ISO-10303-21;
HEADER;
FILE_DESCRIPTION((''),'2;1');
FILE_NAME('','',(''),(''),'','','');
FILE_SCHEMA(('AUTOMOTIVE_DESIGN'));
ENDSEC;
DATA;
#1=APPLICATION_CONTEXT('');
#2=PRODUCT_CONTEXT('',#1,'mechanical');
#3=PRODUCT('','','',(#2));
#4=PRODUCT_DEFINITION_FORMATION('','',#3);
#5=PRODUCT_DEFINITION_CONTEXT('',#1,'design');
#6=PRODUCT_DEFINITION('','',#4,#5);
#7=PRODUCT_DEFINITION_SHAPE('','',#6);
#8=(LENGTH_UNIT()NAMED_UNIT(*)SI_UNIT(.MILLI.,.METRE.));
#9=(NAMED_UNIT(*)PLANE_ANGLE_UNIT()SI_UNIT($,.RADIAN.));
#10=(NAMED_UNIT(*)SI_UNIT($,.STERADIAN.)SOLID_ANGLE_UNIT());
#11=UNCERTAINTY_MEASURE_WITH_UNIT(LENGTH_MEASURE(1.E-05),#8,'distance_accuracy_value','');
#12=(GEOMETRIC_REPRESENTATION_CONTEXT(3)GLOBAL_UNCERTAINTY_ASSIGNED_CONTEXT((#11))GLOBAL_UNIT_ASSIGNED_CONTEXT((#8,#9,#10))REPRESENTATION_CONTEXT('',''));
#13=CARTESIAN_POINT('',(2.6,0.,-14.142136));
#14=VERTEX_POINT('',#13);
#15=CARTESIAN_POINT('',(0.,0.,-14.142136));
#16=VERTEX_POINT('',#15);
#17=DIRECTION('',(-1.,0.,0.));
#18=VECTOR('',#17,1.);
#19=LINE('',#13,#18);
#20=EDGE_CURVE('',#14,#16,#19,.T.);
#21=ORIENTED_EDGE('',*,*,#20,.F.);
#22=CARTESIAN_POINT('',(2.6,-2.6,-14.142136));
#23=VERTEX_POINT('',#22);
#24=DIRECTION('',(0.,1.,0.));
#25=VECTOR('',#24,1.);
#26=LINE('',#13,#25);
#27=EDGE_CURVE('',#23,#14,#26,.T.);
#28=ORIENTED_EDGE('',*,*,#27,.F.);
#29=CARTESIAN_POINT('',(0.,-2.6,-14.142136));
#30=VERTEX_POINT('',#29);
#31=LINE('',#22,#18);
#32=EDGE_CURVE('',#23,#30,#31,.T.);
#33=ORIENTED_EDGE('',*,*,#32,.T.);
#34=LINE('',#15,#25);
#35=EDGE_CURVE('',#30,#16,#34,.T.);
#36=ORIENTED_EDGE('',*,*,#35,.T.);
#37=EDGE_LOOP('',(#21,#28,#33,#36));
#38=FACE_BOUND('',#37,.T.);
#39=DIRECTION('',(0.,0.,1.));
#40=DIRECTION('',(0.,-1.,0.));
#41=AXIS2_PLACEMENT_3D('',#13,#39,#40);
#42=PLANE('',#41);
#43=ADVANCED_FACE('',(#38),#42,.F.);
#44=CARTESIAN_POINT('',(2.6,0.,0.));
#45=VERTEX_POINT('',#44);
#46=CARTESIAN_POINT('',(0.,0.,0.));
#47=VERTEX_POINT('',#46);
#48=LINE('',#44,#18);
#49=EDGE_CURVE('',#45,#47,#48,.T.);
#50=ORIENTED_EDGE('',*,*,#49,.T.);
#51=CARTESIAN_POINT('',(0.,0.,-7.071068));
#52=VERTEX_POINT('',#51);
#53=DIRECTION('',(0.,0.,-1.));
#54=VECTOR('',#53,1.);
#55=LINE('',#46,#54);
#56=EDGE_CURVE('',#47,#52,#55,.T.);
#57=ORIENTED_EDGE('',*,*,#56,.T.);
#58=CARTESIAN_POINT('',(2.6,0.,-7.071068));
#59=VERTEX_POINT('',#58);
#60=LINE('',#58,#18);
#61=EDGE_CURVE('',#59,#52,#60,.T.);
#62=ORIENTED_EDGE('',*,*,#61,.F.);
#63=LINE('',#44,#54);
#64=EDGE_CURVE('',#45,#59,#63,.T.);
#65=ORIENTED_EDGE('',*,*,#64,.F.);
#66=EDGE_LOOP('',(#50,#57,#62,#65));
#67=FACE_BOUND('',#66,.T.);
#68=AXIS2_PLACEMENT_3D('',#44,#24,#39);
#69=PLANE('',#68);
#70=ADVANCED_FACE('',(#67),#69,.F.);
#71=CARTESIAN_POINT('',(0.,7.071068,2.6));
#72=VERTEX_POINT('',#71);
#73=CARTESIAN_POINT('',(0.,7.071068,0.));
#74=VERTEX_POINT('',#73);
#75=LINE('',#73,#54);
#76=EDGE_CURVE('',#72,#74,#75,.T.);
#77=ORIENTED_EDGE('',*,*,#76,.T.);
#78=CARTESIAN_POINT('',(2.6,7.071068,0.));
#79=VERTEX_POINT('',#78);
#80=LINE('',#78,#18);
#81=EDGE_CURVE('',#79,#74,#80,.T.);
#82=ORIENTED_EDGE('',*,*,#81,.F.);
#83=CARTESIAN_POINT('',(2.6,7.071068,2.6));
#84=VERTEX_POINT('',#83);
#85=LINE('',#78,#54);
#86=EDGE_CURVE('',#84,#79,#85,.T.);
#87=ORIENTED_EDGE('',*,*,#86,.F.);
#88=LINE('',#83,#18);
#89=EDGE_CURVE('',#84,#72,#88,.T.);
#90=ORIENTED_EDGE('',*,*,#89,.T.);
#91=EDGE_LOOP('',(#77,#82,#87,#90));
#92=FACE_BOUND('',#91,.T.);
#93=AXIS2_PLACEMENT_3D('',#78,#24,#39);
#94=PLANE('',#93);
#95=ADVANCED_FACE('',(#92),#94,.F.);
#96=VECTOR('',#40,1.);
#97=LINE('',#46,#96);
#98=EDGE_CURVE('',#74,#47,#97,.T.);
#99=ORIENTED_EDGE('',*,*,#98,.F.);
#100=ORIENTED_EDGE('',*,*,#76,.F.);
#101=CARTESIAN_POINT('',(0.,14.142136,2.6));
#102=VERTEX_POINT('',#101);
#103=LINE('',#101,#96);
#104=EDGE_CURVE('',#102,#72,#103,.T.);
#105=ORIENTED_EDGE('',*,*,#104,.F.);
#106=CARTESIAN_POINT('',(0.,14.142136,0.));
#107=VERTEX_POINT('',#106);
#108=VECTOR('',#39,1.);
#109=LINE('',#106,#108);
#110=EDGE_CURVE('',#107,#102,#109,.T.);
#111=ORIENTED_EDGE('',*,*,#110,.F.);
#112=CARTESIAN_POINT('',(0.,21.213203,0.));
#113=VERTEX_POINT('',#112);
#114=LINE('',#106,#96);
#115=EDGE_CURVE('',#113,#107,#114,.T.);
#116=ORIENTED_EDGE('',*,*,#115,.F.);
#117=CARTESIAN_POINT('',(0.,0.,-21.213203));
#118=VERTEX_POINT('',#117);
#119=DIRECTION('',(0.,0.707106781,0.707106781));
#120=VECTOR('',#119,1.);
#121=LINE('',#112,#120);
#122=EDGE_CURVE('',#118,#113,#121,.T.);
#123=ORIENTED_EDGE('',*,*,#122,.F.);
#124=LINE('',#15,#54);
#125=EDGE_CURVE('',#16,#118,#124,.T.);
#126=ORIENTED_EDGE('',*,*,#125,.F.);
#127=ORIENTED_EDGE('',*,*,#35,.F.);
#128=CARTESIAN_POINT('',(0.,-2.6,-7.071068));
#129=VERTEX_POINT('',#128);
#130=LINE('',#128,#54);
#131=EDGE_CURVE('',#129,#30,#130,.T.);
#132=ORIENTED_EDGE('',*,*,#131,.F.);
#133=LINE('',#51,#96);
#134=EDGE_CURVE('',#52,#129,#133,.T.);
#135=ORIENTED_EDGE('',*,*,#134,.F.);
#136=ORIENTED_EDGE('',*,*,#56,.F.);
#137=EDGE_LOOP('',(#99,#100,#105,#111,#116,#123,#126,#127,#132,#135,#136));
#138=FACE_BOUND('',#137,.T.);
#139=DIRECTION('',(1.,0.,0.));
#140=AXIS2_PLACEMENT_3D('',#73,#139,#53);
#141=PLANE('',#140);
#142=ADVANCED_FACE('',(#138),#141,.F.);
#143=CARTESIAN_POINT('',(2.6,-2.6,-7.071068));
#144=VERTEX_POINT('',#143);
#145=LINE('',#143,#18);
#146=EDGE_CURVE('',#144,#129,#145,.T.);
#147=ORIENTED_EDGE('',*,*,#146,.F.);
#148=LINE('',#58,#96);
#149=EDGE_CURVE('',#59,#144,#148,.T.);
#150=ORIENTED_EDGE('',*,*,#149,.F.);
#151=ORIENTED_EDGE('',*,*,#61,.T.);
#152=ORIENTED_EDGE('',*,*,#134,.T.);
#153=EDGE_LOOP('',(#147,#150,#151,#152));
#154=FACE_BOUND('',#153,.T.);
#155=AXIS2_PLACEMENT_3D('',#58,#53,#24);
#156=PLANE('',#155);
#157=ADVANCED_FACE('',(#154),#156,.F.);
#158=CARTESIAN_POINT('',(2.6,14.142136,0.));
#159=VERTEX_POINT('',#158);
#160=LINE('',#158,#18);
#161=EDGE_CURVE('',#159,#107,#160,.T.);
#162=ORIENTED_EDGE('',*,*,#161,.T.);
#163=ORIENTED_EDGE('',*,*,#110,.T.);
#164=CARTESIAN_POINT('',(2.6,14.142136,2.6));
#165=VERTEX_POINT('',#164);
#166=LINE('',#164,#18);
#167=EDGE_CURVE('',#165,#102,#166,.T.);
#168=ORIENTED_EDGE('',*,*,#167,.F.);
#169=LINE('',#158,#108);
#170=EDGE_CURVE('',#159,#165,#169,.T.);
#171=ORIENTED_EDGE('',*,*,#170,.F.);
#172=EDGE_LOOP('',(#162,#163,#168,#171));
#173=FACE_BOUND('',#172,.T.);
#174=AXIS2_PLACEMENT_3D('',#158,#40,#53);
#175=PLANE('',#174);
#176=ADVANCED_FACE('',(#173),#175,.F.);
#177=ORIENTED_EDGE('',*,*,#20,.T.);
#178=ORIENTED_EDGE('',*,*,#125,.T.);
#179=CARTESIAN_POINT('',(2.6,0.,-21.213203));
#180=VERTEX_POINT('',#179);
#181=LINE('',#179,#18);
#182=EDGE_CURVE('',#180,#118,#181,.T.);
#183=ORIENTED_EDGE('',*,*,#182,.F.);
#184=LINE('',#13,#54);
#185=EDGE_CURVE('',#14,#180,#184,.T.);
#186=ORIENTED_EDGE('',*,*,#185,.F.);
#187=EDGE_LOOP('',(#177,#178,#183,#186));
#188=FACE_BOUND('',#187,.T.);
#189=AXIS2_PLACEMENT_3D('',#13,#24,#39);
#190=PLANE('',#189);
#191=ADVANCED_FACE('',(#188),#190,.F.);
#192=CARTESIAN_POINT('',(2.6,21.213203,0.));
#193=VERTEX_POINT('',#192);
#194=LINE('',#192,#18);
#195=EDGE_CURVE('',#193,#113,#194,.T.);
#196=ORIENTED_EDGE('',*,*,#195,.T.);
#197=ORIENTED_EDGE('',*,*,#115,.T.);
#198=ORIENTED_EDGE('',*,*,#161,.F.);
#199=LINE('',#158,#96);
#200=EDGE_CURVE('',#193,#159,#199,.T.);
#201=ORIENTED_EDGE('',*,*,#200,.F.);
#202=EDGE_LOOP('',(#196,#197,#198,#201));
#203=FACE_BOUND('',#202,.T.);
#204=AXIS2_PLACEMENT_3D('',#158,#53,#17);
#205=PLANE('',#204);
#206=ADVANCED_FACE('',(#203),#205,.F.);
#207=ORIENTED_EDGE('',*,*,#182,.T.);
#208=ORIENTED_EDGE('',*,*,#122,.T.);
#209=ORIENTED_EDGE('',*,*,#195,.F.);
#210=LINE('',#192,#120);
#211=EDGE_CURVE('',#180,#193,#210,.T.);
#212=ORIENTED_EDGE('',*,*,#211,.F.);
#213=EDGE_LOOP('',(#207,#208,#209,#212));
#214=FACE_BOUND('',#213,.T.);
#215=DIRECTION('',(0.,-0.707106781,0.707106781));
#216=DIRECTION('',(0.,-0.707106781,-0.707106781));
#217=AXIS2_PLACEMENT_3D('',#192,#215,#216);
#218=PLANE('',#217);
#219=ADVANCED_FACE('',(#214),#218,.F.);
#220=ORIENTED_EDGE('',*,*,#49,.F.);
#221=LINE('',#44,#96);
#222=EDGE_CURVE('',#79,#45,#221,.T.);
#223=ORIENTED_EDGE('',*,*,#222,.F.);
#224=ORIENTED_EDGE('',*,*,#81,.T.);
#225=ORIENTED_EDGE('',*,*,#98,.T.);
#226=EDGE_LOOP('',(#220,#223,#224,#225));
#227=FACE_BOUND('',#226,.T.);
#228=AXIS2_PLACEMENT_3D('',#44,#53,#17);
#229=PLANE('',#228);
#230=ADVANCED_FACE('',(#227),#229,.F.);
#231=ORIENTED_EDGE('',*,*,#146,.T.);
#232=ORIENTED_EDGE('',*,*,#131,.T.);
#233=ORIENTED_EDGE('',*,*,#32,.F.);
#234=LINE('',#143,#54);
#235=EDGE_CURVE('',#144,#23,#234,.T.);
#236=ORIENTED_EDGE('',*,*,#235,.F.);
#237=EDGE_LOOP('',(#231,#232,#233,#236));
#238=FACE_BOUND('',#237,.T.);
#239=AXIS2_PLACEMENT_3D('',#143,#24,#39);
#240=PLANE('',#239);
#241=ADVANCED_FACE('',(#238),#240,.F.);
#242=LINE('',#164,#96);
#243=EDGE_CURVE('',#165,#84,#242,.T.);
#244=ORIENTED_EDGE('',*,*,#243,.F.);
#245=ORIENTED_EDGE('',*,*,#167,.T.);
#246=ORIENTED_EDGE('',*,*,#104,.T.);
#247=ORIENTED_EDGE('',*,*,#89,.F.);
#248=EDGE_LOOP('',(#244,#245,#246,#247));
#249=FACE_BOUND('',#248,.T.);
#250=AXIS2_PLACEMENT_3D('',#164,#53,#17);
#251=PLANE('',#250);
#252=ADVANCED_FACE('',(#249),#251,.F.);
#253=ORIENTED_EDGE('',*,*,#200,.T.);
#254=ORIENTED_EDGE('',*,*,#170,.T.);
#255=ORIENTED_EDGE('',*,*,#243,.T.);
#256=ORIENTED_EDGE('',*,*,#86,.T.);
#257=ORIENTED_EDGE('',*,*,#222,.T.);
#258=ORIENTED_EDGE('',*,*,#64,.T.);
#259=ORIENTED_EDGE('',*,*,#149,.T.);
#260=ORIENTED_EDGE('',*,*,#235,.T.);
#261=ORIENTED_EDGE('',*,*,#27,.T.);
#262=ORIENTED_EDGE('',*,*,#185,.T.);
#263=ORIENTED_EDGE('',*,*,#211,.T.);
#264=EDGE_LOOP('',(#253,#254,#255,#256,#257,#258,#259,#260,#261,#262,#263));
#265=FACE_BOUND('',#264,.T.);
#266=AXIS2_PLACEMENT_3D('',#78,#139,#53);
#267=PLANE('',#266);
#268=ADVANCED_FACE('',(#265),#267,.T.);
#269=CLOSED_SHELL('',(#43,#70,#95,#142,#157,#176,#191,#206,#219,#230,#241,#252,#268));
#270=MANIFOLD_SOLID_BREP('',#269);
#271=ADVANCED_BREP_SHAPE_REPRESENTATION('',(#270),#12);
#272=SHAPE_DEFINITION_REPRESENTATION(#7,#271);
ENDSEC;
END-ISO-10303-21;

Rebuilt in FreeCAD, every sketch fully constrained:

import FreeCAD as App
import Part
import Sketcher
from FreeCAD import Vector


def add_polygon(sketch, points):
    """Adds a closed chain of lines whose ends are joined by coincident constraints."""
    first, n = sketch.GeometryCount, len(points)
    for a, b in zip(points, points[1:] + points[:1]):
        sketch.addGeometry(Part.LineSegment(App.Vector(*a, 0), App.Vector(*b, 0)), False)
    for i in range(n):
        sketch.addConstraint(Sketcher.Constraint("Coincident", first + i, 2, first + (i + 1) % n, 1))

doc = App.newDocument("Part")
body = doc.addObject("PartDesign::Body", "Body")

# Sketch on YZ plane
sketch1 = body.newObject("Sketcher::SketchObject", "Sketch")
sketch1.AttachmentSupport = (doc.getObject("YZ_Plane"), [""])
sketch1.MapMode = "FlatFace"
add_polygon(sketch1, [(0, -21.2), (21.2, 0), (14.1, 0), (14.1, 2.6), (7.1, 2.6), (7.1, 0), (0, 0), (0, -7.1), (-2.6, -7.1), (-2.6, -14.1), (0, -14.1)])  # lines 0-10
sketch1.addConstraint(Sketcher.Constraint("Horizontal", 1))
sketch1.addConstraint(Sketcher.Constraint("Vertical", 2))
sketch1.addConstraint(Sketcher.Constraint("Horizontal", 3))
sketch1.addConstraint(Sketcher.Constraint("Vertical", 4))
sketch1.addConstraint(Sketcher.Constraint("Horizontal", 5))
sketch1.addConstraint(Sketcher.Constraint("Vertical", 6))
sketch1.addConstraint(Sketcher.Constraint("Horizontal", 7))
sketch1.addConstraint(Sketcher.Constraint("Vertical", 8))
sketch1.addConstraint(Sketcher.Constraint("Horizontal", 9))
sketch1.addConstraint(Sketcher.Constraint("Vertical", 10))
sketch1.addConstraint(Sketcher.Constraint("Coincident", 5, 2, -1, 1))
sketch1.addConstraint(Sketcher.Constraint("PointOnObject", 0, 2, -1))
sketch1.addConstraint(Sketcher.Constraint("PointOnObject", 9, 2, -2))
sketch1.addConstraint(Sketcher.Constraint("Equal", 1, 3))
sketch1.addConstraint(Sketcher.Constraint("Equal", 3, 5))
sketch1.addConstraint(Sketcher.Constraint("Equal", 9, 2))
sketch1.addConstraint(Sketcher.Constraint("Equal", 5, 6))
sketch1.addConstraint(Sketcher.Constraint("Equal", 6, 8))
sketch1.addConstraint(Sketcher.Constraint("Equal", 8, 10))
sketch1.addConstraint(Sketcher.Constraint("Distance", 0, 30.0))
sketch1.addConstraint(Sketcher.Constraint("DistanceX", 7, 2, 7, 1, 2.6))
pad1 = body.newObject("PartDesign::Pad", "Pad")
pad1.Profile = sketch1
pad1.Length = 2.6

doc.recompute()
